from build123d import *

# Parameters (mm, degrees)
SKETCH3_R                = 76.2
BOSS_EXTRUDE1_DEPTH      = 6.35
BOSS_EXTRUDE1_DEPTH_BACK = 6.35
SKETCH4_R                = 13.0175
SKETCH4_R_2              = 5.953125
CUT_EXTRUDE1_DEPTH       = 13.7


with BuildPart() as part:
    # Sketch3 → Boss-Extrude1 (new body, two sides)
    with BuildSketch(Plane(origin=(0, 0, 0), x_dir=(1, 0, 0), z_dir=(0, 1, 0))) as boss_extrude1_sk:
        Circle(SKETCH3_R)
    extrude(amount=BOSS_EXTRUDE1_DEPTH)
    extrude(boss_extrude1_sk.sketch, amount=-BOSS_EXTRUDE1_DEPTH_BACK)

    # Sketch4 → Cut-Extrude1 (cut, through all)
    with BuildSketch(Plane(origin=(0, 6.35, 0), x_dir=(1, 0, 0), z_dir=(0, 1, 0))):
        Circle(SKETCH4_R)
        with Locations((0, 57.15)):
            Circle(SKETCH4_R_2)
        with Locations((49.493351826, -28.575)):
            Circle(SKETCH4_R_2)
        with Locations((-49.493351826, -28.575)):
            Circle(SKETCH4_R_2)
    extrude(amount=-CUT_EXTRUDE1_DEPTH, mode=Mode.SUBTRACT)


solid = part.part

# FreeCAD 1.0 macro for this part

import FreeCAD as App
import Part
import Sketcher

V = App.Vector
Q = App.Units.Quantity

doc = App.newDocument("Part")
params = doc.addObject("Spreadsheet::Sheet", "Params")
for row, (alias, value) in enumerate([
    ("sketch1_diameter", "6 in"),
    ("pad1_length", "0.25 in"),
    ("pad1_length2", "0.25 in"),
    ("sketch2_diameter", "1.025 in"),
    ("sketch2_diameter2", "0.46875 in"),
], start=1):
    params.set(f"A{row}", alias)
    params.set(f"B{row}", "=" + value)
    params.setAlias(f"B{row}", alias)

body = doc.addObject("PartDesign::Body", "Body")

# Sketch on XZ plane
sketch1 = doc.addObject("Sketcher::SketchObject", "Sketch")
body.addObject(sketch1)
sketch1.AttachmentSupport = (doc.XZ_Plane, [""])
sketch1.MapMode = "FlatFace"
sketch1.addGeometry(Part.Circle(V(0, 0, 0), V(0, 0, 1), 76), False)
sketch1.addConstraint(Sketcher.Constraint("Coincident", 0, 3, -1, 1))
sketch1.addConstraint(Sketcher.Constraint("Diameter", 0, Q("6 in")))
sketch1.setExpression("Constraints[1]", "Params.sketch1_diameter")
pad1 = doc.addObject("PartDesign::Pad", "Pad")
body.addObject(pad1)
pad1.Profile = sketch1
pad1.Type = "TwoLengths"
pad1.setExpression("Length", "Params.pad1_length")
pad1.setExpression("Length2", "Params.pad1_length2")
pad1.Reversed = True

# Sketch on XZ plane
sketch2 = doc.addObject("Sketcher::SketchObject", "Sketch001")
body.addObject(sketch2)
sketch2.AttachmentSupport = (doc.XZ_Plane, [""])
sketch2.MapMode = "FlatFace"
sketch2.AttachmentOffset = App.Placement(V(0, 0, -0.25 * 25.4), App.Rotation())
sketch2.addGeometry(Part.Circle(V(0, 0, 0), V(0, 0, 1), 13), False)
sketch2.addGeometry(Part.Circle(V(0, -57, 0), V(0, 0, 1), 6), False)
sketch2.addGeometry(Part.Circle(V(49, 29, 0), V(0, 0, 1), 6), False)
sketch2.addGeometry(Part.Circle(V(-49, 29, 0), V(0, 0, 1), 6), False)
sketch2.addConstraint(Sketcher.Constraint("Coincident", 0, 3, -1, 1))
sketch2.addConstraint(Sketcher.Constraint("Equal", 1, 2))
sketch2.addConstraint(Sketcher.Constraint("Equal", 2, 3))
sketch2.addConstraint(Sketcher.Constraint("Symmetric", 2, 3, 3, 3, -2))
sketch2.addConstraint(Sketcher.Constraint("PointOnObject", 1, 3, -2))
sketch2.addConstraint(Sketcher.Constraint("Diameter", 0, Q("1.025 in")))
sketch2.addConstraint(Sketcher.Constraint("Diameter", 1, Q("0.46875 in")))
sketch2.addConstraint(Sketcher.Constraint("DistanceY", 1, 3, -1, 1, Q("2.25 in")))
sketch2.addConstraint(Sketcher.Constraint("DistanceY", -1, 1, 2, 3, Q("1.125 in")))
sketch2.addConstraint(Sketcher.Constraint("DistanceX", -1, 1, 2, 3, Q("49.493352 mm")))
sketch2.setExpression("Constraints[5]", "Params.sketch2_diameter")
sketch2.setExpression("Constraints[6]", "Params.sketch2_diameter2")
pocket1 = doc.addObject("PartDesign::Pocket", "Pocket")
body.addObject(pocket1)
pocket1.Profile = sketch2
pocket1.Type = "ThroughAll"
pocket1.Reversed = True

doc.recompute()
